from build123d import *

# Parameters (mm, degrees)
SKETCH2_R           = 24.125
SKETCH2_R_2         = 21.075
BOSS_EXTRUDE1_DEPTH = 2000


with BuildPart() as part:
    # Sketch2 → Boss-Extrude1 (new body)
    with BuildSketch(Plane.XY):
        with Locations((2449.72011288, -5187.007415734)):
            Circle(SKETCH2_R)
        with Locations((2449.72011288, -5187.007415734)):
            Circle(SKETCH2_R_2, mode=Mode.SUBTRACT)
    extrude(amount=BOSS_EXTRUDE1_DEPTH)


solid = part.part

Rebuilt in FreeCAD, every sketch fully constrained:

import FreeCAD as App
import Part
import Sketcher
Q = App.Units.Quantity

doc = App.newDocument("Part")
params = doc.addObject("Spreadsheet::Sheet", "Params")
for row, (alias, value) in enumerate([
    ("sketch1_diameter", "48.25 mm"),
    ("sketch1_diameter2", "42.15 mm"),
    ("pad1_length", "2000 mm"),
], start=1):
    params.set(f"A{row}", alias)
    params.set(f"B{row}", "=" + value)
    params.setAlias(f"B{row}", alias)

body = doc.addObject("PartDesign::Body", "Body")

# Sketch on XY plane
sketch1 = body.newObject("Sketcher::SketchObject", "Sketch")
sketch1.AttachmentSupport = (doc.getObject("XY_Plane"), [""])
sketch1.MapMode = "FlatFace"
sketch1.addGeometry([
    Part.Circle(App.Vector(2449.720113, -5187.007416, 0), App.Vector(0, 0, 1), 24.125),
    Part.Circle(App.Vector(2449.720113, -5187.007416, 0), App.Vector(0, 0, 1), 21.075),
], False)
sketch1.addConstraint([
    Sketcher.Constraint("Coincident", 1, 3, 0, 3),
    Sketcher.Constraint("Diameter", 0, Q("48.25 mm")),
    Sketcher.Constraint("Diameter", 1, Q("42.15 mm")),
    Sketcher.Constraint("DistanceX", -1, 1, 0, 3, Q("2449.720113 mm")),
    Sketcher.Constraint("DistanceY", 0, 3, -1, 1, Q("5187.007416 mm")),
])
sketch1.setExpression("Constraints[1]", "Params.sketch1_diameter")
sketch1.setExpression("Constraints[2]", "Params.sketch1_diameter2")
pad1 = body.newObject("PartDesign::Pad", "Pad")
pad1.Profile = sketch1
pad1.setExpression("Length", "Params.pad1_length")

doc.recompute()
